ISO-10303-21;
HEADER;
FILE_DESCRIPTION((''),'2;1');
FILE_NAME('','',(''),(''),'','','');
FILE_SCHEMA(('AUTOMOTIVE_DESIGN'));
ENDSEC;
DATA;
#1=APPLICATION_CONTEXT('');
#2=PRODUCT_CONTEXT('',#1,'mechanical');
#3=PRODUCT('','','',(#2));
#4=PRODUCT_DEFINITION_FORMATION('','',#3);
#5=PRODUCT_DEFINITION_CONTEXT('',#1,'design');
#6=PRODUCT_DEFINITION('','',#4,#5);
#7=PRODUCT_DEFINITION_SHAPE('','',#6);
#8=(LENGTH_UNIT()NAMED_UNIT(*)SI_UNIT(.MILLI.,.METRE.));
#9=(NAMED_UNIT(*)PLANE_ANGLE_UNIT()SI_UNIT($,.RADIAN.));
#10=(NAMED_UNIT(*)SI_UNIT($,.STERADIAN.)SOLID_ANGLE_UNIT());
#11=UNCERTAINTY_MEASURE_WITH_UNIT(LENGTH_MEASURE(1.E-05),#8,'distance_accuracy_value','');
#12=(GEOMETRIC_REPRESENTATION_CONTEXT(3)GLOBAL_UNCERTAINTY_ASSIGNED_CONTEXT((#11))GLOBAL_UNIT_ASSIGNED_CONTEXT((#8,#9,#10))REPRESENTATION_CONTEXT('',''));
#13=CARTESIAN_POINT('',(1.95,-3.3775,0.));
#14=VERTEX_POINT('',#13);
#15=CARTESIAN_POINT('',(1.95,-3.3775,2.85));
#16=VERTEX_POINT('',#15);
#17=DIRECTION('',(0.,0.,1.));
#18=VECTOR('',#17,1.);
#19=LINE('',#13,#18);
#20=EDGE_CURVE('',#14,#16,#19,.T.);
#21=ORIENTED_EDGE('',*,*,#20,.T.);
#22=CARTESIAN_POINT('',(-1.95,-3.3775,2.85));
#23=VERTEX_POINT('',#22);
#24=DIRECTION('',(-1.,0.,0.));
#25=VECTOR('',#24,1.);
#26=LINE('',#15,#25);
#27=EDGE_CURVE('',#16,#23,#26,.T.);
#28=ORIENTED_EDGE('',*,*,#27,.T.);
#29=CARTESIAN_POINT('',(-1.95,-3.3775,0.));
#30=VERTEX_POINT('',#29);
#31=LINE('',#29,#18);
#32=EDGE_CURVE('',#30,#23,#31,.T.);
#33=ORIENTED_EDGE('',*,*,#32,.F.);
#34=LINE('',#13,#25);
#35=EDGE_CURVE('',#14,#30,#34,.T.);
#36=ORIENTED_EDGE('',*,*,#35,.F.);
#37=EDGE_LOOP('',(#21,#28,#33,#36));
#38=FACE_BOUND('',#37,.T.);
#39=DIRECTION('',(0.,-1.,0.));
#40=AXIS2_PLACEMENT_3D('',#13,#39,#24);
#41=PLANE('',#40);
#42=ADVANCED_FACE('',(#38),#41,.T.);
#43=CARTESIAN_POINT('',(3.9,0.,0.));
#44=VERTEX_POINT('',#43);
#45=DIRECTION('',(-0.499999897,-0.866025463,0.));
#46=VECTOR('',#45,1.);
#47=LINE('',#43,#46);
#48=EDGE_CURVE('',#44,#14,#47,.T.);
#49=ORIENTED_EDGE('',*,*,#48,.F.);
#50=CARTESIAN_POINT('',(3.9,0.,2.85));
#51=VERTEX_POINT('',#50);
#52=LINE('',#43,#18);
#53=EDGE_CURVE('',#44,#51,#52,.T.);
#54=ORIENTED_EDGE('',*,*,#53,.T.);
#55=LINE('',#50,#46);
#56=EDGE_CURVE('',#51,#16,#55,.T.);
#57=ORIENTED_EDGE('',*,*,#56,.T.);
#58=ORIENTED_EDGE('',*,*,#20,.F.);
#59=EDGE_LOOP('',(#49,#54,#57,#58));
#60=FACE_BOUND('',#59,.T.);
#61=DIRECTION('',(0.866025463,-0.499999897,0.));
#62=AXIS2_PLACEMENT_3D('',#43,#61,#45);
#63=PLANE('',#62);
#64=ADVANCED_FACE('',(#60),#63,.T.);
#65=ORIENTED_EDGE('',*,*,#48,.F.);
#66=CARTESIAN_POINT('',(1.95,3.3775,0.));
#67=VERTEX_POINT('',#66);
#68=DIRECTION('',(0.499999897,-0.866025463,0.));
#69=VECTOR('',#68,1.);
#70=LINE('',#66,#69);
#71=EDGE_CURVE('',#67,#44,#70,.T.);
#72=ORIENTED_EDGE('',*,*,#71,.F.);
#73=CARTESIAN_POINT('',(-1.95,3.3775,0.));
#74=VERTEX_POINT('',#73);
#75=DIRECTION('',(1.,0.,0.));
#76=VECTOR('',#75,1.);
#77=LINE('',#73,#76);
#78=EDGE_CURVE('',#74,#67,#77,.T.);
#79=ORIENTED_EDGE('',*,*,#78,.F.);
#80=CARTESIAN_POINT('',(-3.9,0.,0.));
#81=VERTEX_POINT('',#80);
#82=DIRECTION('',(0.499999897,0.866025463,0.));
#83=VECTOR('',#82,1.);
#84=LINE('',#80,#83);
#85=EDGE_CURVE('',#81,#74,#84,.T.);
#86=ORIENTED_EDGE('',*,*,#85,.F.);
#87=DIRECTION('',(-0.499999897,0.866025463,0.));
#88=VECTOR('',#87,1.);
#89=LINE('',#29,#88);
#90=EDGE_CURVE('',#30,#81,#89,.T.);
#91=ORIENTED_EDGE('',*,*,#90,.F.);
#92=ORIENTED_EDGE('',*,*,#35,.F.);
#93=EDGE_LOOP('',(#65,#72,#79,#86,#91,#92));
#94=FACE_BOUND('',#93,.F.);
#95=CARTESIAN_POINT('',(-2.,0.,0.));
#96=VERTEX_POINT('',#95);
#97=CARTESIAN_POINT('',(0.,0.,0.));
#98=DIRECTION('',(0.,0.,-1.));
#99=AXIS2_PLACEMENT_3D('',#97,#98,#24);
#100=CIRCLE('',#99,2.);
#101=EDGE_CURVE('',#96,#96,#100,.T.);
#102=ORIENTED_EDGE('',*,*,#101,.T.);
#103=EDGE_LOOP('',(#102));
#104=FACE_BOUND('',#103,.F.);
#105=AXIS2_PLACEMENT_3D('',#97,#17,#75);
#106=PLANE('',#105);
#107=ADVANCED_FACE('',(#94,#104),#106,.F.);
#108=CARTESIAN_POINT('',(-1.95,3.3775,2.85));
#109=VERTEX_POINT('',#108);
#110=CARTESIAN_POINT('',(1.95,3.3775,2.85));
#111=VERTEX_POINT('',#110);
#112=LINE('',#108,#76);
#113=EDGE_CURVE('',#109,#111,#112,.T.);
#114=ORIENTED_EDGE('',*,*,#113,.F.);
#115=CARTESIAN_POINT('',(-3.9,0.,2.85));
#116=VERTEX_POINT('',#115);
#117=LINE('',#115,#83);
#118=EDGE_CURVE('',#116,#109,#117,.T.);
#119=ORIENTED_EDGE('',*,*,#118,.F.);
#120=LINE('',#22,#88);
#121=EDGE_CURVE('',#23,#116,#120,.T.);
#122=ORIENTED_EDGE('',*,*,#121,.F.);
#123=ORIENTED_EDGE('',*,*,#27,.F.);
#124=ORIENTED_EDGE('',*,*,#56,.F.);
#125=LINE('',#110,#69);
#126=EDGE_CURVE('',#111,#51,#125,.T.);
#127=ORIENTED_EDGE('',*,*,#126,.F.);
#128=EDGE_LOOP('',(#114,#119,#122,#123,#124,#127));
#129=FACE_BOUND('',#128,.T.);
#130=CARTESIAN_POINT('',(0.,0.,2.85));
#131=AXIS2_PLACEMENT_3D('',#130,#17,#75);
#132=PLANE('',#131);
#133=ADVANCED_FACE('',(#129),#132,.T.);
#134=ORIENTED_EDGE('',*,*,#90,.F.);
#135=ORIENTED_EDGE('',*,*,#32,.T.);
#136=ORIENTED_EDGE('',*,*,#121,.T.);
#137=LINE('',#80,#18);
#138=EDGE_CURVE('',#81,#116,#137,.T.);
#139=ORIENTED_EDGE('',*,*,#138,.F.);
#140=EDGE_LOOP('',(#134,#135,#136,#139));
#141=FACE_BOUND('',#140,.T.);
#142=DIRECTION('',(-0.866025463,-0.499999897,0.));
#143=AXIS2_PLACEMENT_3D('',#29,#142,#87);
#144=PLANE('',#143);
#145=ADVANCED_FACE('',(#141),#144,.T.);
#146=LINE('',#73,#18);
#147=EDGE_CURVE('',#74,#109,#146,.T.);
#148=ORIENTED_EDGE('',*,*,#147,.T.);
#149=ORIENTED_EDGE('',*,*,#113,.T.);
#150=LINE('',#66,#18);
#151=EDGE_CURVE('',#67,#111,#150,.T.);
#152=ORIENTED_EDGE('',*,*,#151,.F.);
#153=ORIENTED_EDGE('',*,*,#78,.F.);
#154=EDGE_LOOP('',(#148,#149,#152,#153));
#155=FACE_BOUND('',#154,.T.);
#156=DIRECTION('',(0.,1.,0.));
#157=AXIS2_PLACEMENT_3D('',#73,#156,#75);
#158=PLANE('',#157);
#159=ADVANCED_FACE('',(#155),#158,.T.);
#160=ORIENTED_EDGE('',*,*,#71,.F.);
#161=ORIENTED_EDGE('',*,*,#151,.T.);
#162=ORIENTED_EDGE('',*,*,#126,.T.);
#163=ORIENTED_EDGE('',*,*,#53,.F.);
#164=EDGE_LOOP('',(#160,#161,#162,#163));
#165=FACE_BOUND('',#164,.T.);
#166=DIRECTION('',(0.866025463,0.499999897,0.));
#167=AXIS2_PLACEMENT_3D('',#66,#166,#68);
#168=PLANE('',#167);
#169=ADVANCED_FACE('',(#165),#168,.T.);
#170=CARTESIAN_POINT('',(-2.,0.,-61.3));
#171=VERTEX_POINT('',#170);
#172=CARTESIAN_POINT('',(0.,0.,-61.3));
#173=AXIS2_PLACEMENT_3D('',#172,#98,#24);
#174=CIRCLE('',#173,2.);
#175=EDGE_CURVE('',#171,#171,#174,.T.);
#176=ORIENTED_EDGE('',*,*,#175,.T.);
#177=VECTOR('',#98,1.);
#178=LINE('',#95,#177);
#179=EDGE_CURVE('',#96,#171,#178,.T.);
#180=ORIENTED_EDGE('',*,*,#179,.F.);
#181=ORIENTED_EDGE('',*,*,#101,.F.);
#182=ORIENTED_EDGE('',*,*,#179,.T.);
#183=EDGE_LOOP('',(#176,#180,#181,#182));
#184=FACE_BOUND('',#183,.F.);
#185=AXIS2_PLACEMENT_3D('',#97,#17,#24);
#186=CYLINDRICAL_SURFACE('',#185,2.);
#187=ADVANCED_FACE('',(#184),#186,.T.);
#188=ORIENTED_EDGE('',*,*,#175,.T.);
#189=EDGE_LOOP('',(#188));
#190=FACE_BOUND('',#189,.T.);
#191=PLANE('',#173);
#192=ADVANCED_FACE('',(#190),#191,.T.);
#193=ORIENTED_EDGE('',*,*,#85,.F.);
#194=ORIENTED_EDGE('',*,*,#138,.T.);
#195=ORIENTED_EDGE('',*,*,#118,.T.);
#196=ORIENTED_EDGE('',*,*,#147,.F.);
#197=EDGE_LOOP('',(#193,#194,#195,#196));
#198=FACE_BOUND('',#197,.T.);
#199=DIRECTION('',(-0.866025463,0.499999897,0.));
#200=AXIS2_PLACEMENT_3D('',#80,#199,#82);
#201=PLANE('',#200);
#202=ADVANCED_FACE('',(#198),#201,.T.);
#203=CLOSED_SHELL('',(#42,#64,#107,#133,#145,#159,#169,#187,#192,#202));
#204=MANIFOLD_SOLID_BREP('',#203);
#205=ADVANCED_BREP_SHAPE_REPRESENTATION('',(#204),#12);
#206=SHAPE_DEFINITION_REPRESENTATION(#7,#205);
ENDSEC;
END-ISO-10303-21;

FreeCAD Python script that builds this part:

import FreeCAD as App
import Part
import Sketcher
Q = App.Units.Quantity

doc = App.newDocument("Part")
body = doc.addObject("PartDesign::Body", "Body")

sketch1 = doc.addObject("Sketcher::SketchObject", "Sketch")
body.addObject(sketch1)
sketch1.AttachmentSupport = (doc.XY_Plane, [""])
sketch1.MapMode = "FlatFace"
sketch1.addGeometry([
    Part.LineSegment(App.Vector(1.95, 3.3775, 0), App.Vector(-1.95, 3.3775, 0)),
    Part.LineSegment(App.Vector(-1.95, 3.3775, 0), App.Vector(-3.9, 0, 0)),
    Part.LineSegment(App.Vector(-3.9, 0, 0), App.Vector(-1.95, -3.3775, 0)),
    Part.LineSegment(App.Vector(-1.95, -3.3775, 0), App.Vector(1.95, -3.3775, 0)),
    Part.LineSegment(App.Vector(1.95, -3.3775, 0), App.Vector(3.9, 0, 0)),
    Part.LineSegment(App.Vector(3.9, 0, 0), App.Vector(1.95, 3.3775, 0)),
], False)
sketch1.addConstraint([
    Sketcher.Constraint("Coincident", 0, 2, 1, 1),
    Sketcher.Constraint("Coincident", 1, 2, 2, 1),
    Sketcher.Constraint("Coincident", 2, 2, 3, 1),
    Sketcher.Constraint("Coincident", 3, 2, 4, 1),
    Sketcher.Constraint("Coincident", 4, 2, 5, 1),
    Sketcher.Constraint("Coincident", 5, 2, 0, 1),
    Sketcher.Constraint("Horizontal", 0),
    Sketcher.Constraint("Horizontal", 3),
    Sketcher.Constraint("Symmetric", 0, 2, 3, 2, -1, 1),
    Sketcher.Constraint("Symmetric", 1, 2, 4, 2, -1, 1),
    Sketcher.Constraint("PointOnObject", 1, 2, -1),
    Sketcher.Constraint("Parallel", 2, 5),
    Sketcher.Constraint("Vertical", 0, 2, 2, 2),
    Sketcher.Constraint("DistanceX", 0, 2, 0, 1, Q("3.9 mm")),
    Sketcher.Constraint("Distance", 1, Q("3.9 mm")),
    Sketcher.Constraint("DistanceX", 1, 2, -1, 1, Q("3.9 mm")),
])
pad1 = doc.addObject("PartDesign::Pad", "Pad")
body.addObject(pad1)
pad1.Profile = sketch1
pad1.Length = 2.85

sketch2 = doc.addObject("Sketcher::SketchObject", "Sketch001")
body.addObject(sketch2)
sketch2.AttachmentSupport = (doc.XY_Plane, [""])
sketch2.MapMode = "FlatFace"
sketch2.addGeometry(Part.Circle(App.Vector(0, 0, 0), App.Vector(0, 0, 1), 2), False)
sketch2.addConstraint([
    Sketcher.Constraint("Coincident", 0, 3, -1, 1),
    Sketcher.Constraint("Diameter", 0, Q("4 mm")),
])
pad2 = doc.addObject("PartDesign::Pad", "Pad001")
body.addObject(pad2)
pad2.Profile = sketch2
pad2.Length = 61.3
pad2.Reversed = True

doc.recompute()
